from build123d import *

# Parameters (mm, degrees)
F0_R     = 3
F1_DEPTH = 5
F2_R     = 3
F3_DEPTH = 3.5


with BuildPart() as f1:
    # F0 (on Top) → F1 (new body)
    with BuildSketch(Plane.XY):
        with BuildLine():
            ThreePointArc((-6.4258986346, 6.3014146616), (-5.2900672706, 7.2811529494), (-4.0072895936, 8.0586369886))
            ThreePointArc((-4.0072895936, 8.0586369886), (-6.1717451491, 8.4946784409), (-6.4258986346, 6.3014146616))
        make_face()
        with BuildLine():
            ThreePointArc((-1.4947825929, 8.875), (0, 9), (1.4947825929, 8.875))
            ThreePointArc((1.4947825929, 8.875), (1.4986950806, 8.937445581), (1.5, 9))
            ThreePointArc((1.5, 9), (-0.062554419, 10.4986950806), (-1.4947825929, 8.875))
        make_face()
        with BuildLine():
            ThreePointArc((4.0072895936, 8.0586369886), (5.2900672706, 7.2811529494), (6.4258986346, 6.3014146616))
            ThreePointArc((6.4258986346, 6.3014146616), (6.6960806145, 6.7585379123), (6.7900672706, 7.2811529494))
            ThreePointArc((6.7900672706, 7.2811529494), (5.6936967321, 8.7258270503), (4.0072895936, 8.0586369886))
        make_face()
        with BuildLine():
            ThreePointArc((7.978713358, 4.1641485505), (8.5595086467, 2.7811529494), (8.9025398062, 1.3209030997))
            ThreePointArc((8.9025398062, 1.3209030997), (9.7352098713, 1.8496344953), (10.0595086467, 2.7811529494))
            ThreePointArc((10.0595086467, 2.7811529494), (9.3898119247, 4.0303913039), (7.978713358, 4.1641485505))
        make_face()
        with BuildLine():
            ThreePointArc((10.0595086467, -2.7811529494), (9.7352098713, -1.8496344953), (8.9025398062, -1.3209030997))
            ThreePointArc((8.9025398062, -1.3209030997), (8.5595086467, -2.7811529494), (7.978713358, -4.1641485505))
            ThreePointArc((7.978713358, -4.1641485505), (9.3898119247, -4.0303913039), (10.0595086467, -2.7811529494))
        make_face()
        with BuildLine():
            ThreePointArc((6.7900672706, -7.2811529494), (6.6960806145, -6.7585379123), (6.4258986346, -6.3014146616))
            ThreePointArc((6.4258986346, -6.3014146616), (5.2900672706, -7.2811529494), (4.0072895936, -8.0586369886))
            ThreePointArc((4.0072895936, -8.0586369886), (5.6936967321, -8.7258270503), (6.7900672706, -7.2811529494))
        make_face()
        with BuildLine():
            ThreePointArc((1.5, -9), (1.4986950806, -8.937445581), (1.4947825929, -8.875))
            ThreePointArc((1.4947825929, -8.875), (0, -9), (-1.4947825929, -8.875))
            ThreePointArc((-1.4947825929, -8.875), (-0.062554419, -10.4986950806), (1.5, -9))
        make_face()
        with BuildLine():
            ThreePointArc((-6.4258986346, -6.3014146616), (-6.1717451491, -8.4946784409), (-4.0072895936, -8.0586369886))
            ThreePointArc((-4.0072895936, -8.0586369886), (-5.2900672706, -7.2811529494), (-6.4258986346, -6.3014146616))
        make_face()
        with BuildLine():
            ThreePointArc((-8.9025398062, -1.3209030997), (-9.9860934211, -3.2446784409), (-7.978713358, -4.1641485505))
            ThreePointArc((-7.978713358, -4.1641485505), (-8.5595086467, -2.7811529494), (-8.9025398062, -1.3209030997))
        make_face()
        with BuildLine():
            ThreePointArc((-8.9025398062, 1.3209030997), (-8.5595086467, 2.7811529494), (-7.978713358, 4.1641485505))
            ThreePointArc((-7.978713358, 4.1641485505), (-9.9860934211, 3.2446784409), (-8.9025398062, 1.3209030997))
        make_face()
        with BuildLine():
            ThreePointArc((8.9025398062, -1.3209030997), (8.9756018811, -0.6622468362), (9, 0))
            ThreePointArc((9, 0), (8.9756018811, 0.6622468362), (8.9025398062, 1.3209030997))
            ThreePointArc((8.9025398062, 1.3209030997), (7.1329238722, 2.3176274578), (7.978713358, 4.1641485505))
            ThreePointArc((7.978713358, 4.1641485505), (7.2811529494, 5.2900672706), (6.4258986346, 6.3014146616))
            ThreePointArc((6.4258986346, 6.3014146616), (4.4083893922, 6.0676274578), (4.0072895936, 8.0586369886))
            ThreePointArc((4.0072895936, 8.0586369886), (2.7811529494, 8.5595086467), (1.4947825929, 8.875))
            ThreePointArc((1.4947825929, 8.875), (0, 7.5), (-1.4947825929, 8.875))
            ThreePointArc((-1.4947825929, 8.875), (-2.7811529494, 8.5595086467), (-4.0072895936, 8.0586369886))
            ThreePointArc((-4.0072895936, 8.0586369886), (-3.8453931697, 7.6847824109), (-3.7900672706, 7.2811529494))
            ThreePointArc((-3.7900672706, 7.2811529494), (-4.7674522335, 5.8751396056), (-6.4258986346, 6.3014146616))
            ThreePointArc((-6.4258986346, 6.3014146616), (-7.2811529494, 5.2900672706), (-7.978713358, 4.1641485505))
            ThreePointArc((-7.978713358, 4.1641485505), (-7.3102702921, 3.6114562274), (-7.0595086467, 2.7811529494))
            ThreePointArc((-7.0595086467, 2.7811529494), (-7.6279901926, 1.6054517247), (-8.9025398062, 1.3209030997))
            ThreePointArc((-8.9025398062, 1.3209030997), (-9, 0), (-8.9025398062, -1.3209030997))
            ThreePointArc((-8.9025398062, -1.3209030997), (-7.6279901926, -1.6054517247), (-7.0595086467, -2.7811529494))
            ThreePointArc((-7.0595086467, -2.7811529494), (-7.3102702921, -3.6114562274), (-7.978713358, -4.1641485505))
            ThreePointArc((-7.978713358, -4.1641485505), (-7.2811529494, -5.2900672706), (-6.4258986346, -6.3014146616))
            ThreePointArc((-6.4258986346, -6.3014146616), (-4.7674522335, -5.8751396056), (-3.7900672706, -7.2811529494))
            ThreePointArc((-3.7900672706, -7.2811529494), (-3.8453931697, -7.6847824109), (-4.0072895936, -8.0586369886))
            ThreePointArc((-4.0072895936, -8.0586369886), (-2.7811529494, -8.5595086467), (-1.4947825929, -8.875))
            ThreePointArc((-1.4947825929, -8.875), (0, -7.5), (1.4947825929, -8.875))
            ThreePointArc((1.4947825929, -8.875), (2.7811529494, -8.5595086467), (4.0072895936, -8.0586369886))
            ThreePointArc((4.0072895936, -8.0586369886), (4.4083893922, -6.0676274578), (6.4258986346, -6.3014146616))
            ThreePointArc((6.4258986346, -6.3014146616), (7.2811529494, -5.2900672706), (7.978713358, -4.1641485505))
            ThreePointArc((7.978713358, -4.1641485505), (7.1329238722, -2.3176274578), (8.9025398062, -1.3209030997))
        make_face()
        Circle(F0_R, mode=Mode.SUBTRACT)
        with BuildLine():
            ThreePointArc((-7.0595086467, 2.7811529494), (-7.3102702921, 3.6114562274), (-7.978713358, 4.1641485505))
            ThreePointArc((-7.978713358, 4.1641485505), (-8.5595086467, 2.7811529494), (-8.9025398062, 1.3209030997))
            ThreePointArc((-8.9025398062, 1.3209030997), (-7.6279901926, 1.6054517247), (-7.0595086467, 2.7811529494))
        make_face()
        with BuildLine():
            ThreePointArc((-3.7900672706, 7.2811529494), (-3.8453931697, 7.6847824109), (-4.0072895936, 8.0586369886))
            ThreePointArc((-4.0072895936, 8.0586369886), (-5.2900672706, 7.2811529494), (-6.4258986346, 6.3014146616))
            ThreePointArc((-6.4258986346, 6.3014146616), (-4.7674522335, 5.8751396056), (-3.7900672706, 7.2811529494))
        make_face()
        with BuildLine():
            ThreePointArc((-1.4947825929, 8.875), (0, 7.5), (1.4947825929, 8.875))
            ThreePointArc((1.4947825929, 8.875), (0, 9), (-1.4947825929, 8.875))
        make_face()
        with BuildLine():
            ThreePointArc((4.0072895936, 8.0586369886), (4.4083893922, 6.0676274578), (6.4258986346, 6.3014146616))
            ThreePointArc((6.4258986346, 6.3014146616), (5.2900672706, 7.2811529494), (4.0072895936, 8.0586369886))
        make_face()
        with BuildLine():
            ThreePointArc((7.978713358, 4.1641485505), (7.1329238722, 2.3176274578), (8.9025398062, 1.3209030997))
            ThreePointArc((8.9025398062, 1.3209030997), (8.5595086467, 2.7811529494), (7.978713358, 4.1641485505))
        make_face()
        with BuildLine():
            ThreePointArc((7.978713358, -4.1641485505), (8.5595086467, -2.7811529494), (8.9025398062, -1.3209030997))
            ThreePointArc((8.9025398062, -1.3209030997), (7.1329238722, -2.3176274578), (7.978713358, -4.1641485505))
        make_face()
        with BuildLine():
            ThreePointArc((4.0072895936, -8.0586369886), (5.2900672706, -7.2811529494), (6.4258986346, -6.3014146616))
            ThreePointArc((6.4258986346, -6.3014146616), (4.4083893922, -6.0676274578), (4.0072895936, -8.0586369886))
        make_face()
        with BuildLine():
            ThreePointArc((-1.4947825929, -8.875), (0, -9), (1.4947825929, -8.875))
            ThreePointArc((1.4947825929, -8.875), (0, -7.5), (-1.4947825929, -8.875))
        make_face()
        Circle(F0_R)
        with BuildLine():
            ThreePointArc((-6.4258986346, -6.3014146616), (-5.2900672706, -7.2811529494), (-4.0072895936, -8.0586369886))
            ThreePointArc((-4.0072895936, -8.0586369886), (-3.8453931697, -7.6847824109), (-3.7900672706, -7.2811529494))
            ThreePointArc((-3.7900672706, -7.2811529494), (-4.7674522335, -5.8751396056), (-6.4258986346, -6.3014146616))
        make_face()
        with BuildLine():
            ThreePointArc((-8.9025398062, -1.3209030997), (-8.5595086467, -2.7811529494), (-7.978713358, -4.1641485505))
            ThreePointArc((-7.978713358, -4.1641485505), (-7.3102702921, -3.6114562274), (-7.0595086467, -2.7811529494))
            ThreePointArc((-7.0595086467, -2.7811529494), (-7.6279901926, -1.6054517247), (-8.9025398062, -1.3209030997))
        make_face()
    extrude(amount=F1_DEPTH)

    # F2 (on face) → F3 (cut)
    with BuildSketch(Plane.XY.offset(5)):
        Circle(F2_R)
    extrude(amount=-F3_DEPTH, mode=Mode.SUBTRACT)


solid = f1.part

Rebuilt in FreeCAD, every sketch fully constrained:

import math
import FreeCAD as App
import Part
import Sketcher
from FreeCAD import Vector

doc = App.newDocument("Part")
body = doc.addObject("PartDesign::Body", "Body")

# Sketch on XY plane
sketch1 = body.newObject("Sketcher::SketchObject", "Sketch")
sketch1.AttachmentSupport = (doc.getObject("XY_Plane"), [""])
sketch1.MapMode = "FlatFace"
sketch1.addGeometry([
    Part.ArcOfCircle(Part.Circle(Vector(-5.29, 7.28, 0), Vector(0, 0, 1), 1.5), math.radians(31), math.radians(221)),  # 0
    Part.ArcOfCircle(Part.Circle(Vector(0, 0, 0), Vector(0, 0, 1), 9), math.radians(135.56), math.radians(152.44)),  # 1
    Part.ArcOfCircle(Part.Circle(Vector(-8.56, 2.78, 0), Vector(0, 0, 1), 1.5), math.radians(67), math.radians(257)),  # 2
    Part.ArcOfCircle(Part.Circle(Vector(0, 0, 0), Vector(0, 0, 1), 9), math.radians(171.56), math.radians(188.44)),  # 3
    Part.ArcOfCircle(Part.Circle(Vector(-8.56, -2.78, 0), Vector(0, 0, 1), 1.5), math.radians(103), math.radians(293)),  # 4
    Part.ArcOfCircle(Part.Circle(Vector(0, 0, 0), Vector(0, 0, 1), 9), math.radians(-152.44), math.radians(-135.56)),  # 5
    Part.ArcOfCircle(Part.Circle(Vector(-5.29, -7.28, 0), Vector(0, 0, 1), 1.5), math.radians(139), math.radians(329)),  # 6
    Part.ArcOfCircle(Part.Circle(Vector(0, 0, 0), Vector(0, 0, 1), 9), math.radians(-116.44), math.radians(-99.56)),  # 7
    Part.ArcOfCircle(Part.Circle(Vector(0, -9, 0), Vector(0, 0, 1), 1.5), math.radians(175), math.radians(360)),  # 8
    Part.ArcOfCircle(Part.Circle(Vector(0, -9, 0), Vector(0, 0, 1), 1.5), math.radians(0), math.radians(4.78)),  # 9
    Part.ArcOfCircle(Part.Circle(Vector(0, 0, 0), Vector(0, 0, 1), 9), math.radians(-80.44), math.radians(-63.56)),  # 10
    Part.ArcOfCircle(Part.Circle(Vector(5.29, -7.28, 0), Vector(0, 0, 1), 1.5), math.radians(-149), math.radians(0)),  # 11
    Part.ArcOfCircle(Part.Circle(Vector(5.29, -7.28, 0), Vector(0, 0, 1), 1.5), math.radians(0), math.radians(41)),  # 12
    Part.ArcOfCircle(Part.Circle(Vector(0, 0, 0), Vector(0, 0, 1), 9), math.radians(-44.44), math.radians(-27.56)),  # 13
    Part.ArcOfCircle(Part.Circle(Vector(8.56, -2.78, 0), Vector(0, 0, 1), 1.5), math.radians(-113), math.radians(0)),  # 14
    Part.ArcOfCircle(Part.Circle(Vector(8.56, -2.78, 0), Vector(0, 0, 1), 1.5), math.radians(0), math.radians(77)),  # 15
    Part.ArcOfCircle(Part.Circle(Vector(0, 0, 0), Vector(0, 0, 1), 9), math.radians(-8.44), math.radians(0)),  # 16
    Part.ArcOfCircle(Part.Circle(Vector(0, 0, 0), Vector(0, 0, 1), 9), math.radians(0), math.radians(8.44)),  # 17
    Part.ArcOfCircle(Part.Circle(Vector(8.56, 2.78, 0), Vector(0, 0, 1), 1.5), math.radians(-77), math.radians(0)),  # 18
    Part.ArcOfCircle(Part.Circle(Vector(8.56, 2.78, 0), Vector(0, 0, 1), 1.5), math.radians(0), math.radians(113)),  # 19
    Part.ArcOfCircle(Part.Circle(Vector(0, 0, 0), Vector(0, 0, 1), 9), math.radians(27.56), math.radians(44.44)),  # 20
    Part.ArcOfCircle(Part.Circle(Vector(5.29, 7.28, 0), Vector(0, 0, 1), 1.5), math.radians(-41), math.radians(0)),  # 21
    Part.ArcOfCircle(Part.Circle(Vector(5.29, 7.28, 0), Vector(0, 0, 1), 1.5), math.radians(0), math.radians(149)),  # 22
    Part.ArcOfCircle(Part.Circle(Vector(0, 0, 0), Vector(0, 0, 1), 9), math.radians(63.56), math.radians(80.44)),  # 23
    Part.ArcOfCircle(Part.Circle(Vector(0, 9, 0), Vector(0, 0, 1), 1.5), math.radians(-4.78), math.radians(0)),  # 24
    Part.ArcOfCircle(Part.Circle(Vector(0, 9, 0), Vector(0, 0, 1), 1.5), math.radians(0), math.radians(185)),  # 25
    Part.ArcOfCircle(Part.Circle(Vector(0, 0, 0), Vector(0, 0, 1), 9), math.radians(99.56), math.radians(116.44)),  # 26
], False)
sketch1.addConstraint([
    Sketcher.Constraint("Coincident", 0, 2, 1, 1),
    Sketcher.Constraint("Coincident", 1, 2, 2, 1),
    Sketcher.Constraint("Coincident", 2, 2, 3, 1),
    Sketcher.Constraint("Coincident", 3, 2, 4, 1),
    Sketcher.Constraint("Coincident", 4, 2, 5, 1),
    Sketcher.Constraint("Coincident", 5, 2, 6, 1),
    Sketcher.Constraint("Coincident", 6, 2, 7, 1),
    Sketcher.Constraint("Coincident", 7, 2, 8, 1),
    Sketcher.Constraint("Tangent", 8, 2, 9, 1),
    Sketcher.Constraint("Coincident", 9, 2, 10, 1),
    Sketcher.Constraint("Coincident", 10, 2, 11, 1),
    Sketcher.Constraint("Tangent", 11, 2, 12, 1),
    Sketcher.Constraint("Coincident", 12, 2, 13, 1),
    Sketcher.Constraint("Coincident", 13, 2, 14, 1),
    Sketcher.Constraint("Tangent", 14, 2, 15, 1),
    Sketcher.Constraint("Coincident", 15, 2, 16, 1),
    Sketcher.Constraint("Tangent", 16, 2, 17, 1),
    Sketcher.Constraint("Coincident", 17, 2, 18, 1),
    Sketcher.Constraint("Tangent", 18, 2, 19, 1),
    Sketcher.Constraint("Coincident", 19, 2, 20, 1),
    Sketcher.Constraint("Coincident", 20, 2, 21, 1),
    Sketcher.Constraint("Tangent", 21, 2, 22, 1),
    Sketcher.Constraint("Coincident", 22, 2, 23, 1),
    Sketcher.Constraint("Coincident", 23, 2, 24, 1),
    Sketcher.Constraint("Tangent", 24, 2, 25, 1),
    Sketcher.Constraint("Coincident", 25, 2, 26, 1),
    Sketcher.Constraint("Coincident", 26, 2, 0, 1),
    Sketcher.Constraint("Coincident", 1, 3, -1, 1),
    Sketcher.Constraint("Coincident", 3, 3, -1, 1),
    Sketcher.Constraint("Coincident", 5, 3, -1, 1),
    Sketcher.Constraint("Coincident", 7, 3, -1, 1),
    Sketcher.Constraint("Coincident", 10, 3, -1, 1),
    Sketcher.Constraint("Coincident", 13, 3, -1, 1),
    Sketcher.Constraint("Coincident", 16, 3, -1, 1),
    Sketcher.Constraint("Coincident", 20, 3, -1, 1),
    Sketcher.Constraint("Coincident", 23, 3, -1, 1),
    Sketcher.Constraint("Coincident", 26, 3, -1, 1),
    Sketcher.Constraint("Equal", 0, 2),
    Sketcher.Constraint("Equal", 1, 3),
    Sketcher.Constraint("Equal", 2, 4),
    Sketcher.Constraint("Equal", 3, 5),
    Sketcher.Constraint("Equal", 4, 6),
    Sketcher.Constraint("Equal", 5, 7),
    Sketcher.Constraint("Equal", 6, 8),
    Sketcher.Constraint("Equal", 8, 9),
    Sketcher.Constraint("Equal", 7, 10),
    Sketcher.Constraint("Equal", 9, 11),
    Sketcher.Constraint("Equal", 11, 12),
    Sketcher.Constraint("Equal", 10, 13),
    Sketcher.Constraint("Equal", 12, 14),
    Sketcher.Constraint("Equal", 14, 15),
    Sketcher.Constraint("Equal", 13, 16),
    Sketcher.Constraint("Equal", 16, 17),
    Sketcher.Constraint("Equal", 15, 18),
    Sketcher.Constraint("Equal", 18, 19),
    Sketcher.Constraint("Equal", 17, 20),
    Sketcher.Constraint("Equal", 19, 21),
    Sketcher.Constraint("Equal", 21, 22),
    Sketcher.Constraint("Equal", 20, 23),
    Sketcher.Constraint("Equal", 22, 24),
    Sketcher.Constraint("Equal", 24, 25),
    Sketcher.Constraint("Equal", 23, 26),
    Sketcher.Constraint("Symmetric", 0, 3, 11, 3, -1, 1),
    Sketcher.Constraint("Symmetric", 2, 3, 14, 3, -1, 1),
    Sketcher.Constraint("Symmetric", 4, 3, 18, 3, -1, 1),
    Sketcher.Constraint("Symmetric", 6, 3, 21, 3, -1, 1),
    Sketcher.Constraint("Symmetric", 8, 3, 24, 3, -1, 1),
    Sketcher.Constraint("Symmetric", 6, 3, 11, 3, -2),
    Sketcher.Constraint("Symmetric", 4, 3, 14, 3, -2),
    Sketcher.Constraint("Symmetric", 8, 2, 24, 2, -1),
    Sketcher.Constraint("PointOnObject", 16, 2, -1),
    Sketcher.Constraint("Horizontal", 9, 3, 8, 2),
    Sketcher.Constraint("Horizontal", 12, 3, 11, 2),
    Sketcher.Constraint("Horizontal", 15, 3, 14, 2),
    Sketcher.Constraint("Horizontal", 19, 3, 18, 2),
    Sketcher.Constraint("Horizontal", 22, 3, 21, 2),
    Sketcher.Constraint("Radius", 1, 9.0),
    Sketcher.Constraint("Radius", 0, 1.5),
    Sketcher.Constraint("DistanceY", 8, 3, -1, 1, 9.0),
    Sketcher.Constraint("DistanceY", 2, 3, 0, 3, 4.5),
    Sketcher.Constraint("DistanceX", 0, 2, -1, 1, 6.425899),
    Sketcher.Constraint("DistanceY", 4, 3, 1, 2, 6.945302),
    Sketcher.Constraint("DistanceX", 2, 3, -1, 1, 8.559509),
])
pad1 = body.newObject("PartDesign::Pad", "Pad")
pad1.Profile = sketch1
pad1.Length = 5

# Sketch on XY plane
sketch2 = body.newObject("Sketcher::SketchObject", "Sketch001")
sketch2.AttachmentSupport = (doc.getObject("XY_Plane"), [""])
sketch2.MapMode = "FlatFace"
sketch2.AttachmentOffset = App.Placement(Vector(0, 0, 5), App.Rotation())
sketch2.addGeometry(Part.Circle(Vector(0, 0, 0), Vector(0, 0, 1), 3), False)
sketch2.addConstraint([
    Sketcher.Constraint("Coincident", 0, 3, -1, 1),
    Sketcher.Constraint("Diameter", 0, 6.0),
])
pocket1 = body.newObject("PartDesign::Pocket", "Pocket")
pocket1.Profile = sketch2
pocket1.Length = 3.5

doc.recompute()
